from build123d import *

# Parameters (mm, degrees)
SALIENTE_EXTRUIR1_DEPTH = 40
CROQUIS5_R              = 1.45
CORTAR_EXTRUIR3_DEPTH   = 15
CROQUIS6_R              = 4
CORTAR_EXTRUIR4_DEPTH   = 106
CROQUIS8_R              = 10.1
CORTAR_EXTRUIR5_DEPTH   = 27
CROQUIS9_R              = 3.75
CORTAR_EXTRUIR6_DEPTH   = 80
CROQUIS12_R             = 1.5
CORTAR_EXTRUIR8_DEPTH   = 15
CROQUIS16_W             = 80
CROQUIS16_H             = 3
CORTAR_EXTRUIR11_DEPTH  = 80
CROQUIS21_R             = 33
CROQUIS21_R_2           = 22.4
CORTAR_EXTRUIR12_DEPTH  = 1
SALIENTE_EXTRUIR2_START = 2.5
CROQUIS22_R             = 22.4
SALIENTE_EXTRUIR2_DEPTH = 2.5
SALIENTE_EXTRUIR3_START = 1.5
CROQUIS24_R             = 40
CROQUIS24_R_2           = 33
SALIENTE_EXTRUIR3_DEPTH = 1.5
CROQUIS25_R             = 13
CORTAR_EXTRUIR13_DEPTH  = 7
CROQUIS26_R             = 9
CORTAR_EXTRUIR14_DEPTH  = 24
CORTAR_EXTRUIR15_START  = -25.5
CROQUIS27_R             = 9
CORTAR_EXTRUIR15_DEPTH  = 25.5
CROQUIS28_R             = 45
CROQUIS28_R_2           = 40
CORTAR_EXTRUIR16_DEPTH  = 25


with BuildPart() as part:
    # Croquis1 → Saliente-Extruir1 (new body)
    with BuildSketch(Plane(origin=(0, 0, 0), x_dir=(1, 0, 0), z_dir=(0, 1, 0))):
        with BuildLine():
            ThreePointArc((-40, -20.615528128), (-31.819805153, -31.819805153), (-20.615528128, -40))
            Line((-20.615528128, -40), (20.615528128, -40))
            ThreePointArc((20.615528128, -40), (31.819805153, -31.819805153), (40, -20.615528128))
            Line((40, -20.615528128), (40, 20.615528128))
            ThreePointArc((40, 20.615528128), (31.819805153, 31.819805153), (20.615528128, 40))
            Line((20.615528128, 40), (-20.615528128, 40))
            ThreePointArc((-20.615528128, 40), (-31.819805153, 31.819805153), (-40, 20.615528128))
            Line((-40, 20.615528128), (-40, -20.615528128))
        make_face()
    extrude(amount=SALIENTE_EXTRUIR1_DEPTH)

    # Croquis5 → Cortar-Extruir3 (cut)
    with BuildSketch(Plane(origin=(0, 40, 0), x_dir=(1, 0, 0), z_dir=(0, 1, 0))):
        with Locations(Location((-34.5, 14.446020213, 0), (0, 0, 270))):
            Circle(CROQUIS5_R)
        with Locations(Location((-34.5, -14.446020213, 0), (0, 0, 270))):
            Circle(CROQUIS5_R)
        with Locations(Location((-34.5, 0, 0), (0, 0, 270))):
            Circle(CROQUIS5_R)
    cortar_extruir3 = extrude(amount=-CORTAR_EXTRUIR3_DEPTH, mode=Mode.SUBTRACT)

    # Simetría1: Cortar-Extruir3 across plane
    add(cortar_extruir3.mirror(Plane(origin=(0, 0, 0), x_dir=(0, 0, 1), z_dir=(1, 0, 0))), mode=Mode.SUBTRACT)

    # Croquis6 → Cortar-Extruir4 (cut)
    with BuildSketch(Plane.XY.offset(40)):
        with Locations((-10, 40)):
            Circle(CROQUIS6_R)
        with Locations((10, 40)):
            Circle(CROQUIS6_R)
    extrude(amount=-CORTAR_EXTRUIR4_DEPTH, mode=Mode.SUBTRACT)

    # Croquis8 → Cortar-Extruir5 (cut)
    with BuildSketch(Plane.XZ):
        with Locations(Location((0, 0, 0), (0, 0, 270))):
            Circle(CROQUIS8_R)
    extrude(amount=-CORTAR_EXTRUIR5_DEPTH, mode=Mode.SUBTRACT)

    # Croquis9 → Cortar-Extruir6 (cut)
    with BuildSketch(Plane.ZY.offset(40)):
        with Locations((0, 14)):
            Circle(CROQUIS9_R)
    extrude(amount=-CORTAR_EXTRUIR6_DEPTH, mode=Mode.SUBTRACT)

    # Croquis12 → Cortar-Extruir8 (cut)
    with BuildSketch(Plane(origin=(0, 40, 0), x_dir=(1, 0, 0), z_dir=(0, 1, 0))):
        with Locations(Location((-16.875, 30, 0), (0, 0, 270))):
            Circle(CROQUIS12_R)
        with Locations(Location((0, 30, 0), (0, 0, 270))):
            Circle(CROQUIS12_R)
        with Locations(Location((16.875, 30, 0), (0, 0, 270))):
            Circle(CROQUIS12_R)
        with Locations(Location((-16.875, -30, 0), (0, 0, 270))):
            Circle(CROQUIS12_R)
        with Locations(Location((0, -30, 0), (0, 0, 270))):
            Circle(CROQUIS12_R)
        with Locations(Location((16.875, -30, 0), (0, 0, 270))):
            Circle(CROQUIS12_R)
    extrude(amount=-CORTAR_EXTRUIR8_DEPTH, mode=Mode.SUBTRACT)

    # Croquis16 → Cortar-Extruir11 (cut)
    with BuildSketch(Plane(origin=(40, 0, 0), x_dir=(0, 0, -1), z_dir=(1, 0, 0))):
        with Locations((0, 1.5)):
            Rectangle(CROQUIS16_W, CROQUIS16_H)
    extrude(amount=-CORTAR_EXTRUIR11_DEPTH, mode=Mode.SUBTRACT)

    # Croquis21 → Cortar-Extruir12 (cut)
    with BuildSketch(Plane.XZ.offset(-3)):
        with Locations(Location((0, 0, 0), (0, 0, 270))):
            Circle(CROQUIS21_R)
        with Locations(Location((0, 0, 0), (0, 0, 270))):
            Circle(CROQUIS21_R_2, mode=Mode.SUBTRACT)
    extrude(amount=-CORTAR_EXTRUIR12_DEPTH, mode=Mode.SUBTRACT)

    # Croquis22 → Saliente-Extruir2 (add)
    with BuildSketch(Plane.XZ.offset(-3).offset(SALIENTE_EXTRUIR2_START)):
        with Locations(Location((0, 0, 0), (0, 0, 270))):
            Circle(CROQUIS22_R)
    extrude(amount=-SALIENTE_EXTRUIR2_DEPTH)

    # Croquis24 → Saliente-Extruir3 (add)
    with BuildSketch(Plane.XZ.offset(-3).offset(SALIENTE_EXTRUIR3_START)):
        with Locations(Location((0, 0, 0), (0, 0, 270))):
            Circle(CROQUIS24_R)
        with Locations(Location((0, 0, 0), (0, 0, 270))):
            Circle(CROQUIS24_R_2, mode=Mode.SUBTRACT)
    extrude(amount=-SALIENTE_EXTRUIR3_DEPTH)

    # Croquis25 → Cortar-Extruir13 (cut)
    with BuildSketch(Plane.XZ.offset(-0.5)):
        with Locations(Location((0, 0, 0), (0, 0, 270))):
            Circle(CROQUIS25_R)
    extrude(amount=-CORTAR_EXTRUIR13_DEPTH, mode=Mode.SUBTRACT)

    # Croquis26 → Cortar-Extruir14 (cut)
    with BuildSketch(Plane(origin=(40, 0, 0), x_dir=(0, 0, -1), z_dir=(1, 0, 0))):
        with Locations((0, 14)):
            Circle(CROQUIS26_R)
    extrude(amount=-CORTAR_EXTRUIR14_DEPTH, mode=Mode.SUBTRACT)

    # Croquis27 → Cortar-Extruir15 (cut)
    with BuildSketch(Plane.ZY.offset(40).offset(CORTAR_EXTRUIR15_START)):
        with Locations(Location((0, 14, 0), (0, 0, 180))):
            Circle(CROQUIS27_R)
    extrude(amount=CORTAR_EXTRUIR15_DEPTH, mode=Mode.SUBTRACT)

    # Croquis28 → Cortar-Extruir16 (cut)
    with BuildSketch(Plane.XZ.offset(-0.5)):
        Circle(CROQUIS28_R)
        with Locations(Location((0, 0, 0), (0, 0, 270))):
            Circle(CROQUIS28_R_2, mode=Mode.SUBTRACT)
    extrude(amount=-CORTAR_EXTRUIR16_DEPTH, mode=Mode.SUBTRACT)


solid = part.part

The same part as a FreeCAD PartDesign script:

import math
import FreeCAD as App
import Part
import Sketcher
from FreeCAD import Vector

doc = App.newDocument("Part")
body = doc.addObject("PartDesign::Body", "Body")

# Sketch on XZ plane
sketch1 = body.newObject("Sketcher::SketchObject", "Sketch")
sketch1.AttachmentSupport = (doc.getObject("XZ_Plane"), [""])
sketch1.MapMode = "FlatFace"
sketch1.addGeometry(Part.ArcOfCircle(Part.Circle(Vector(0, 0, 0), Vector(0, 0, 1), 45), math.radians(117), math.radians(153)), False)
sketch1.addGeometry(Part.LineSegment(Vector(-21, 40, 0), Vector(21, 40, 0)), False)
sketch1.addGeometry(Part.ArcOfCircle(Part.Circle(Vector(0, 0, 0), Vector(0, 0, 1), 45), math.radians(27), math.radians(63)), False)
sketch1.addGeometry(Part.LineSegment(Vector(40, 21, 0), Vector(40, -21, 0)), False)
sketch1.addGeometry(Part.ArcOfCircle(Part.Circle(Vector(0, 0, 0), Vector(0, 0, 1), 45), math.radians(-63), math.radians(-27)), False)
sketch1.addGeometry(Part.LineSegment(Vector(21, -40, 0), Vector(-21, -40, 0)), False)
sketch1.addGeometry(Part.ArcOfCircle(Part.Circle(Vector(0, 0, 0), Vector(0, 0, 1), 45), math.radians(-153), math.radians(-117)), False)
sketch1.addGeometry(Part.LineSegment(Vector(-40, -21, 0), Vector(-40, 21, 0)), False)
sketch1.addConstraint(Sketcher.Constraint("Coincident", 0, 1, 1, 1))
sketch1.addConstraint(Sketcher.Constraint("Coincident", 1, 2, 2, 2))
sketch1.addConstraint(Sketcher.Constraint("Coincident", 2, 1, 3, 1))
sketch1.addConstraint(Sketcher.Constraint("Coincident", 3, 2, 4, 2))
sketch1.addConstraint(Sketcher.Constraint("Coincident", 4, 1, 5, 1))
sketch1.addConstraint(Sketcher.Constraint("Coincident", 5, 2, 6, 2))
sketch1.addConstraint(Sketcher.Constraint("Coincident", 6, 1, 7, 1))
sketch1.addConstraint(Sketcher.Constraint("Coincident", 7, 2, 0, 2))
sketch1.addConstraint(Sketcher.Constraint("Horizontal", 1))
sketch1.addConstraint(Sketcher.Constraint("Vertical", 3))
sketch1.addConstraint(Sketcher.Constraint("Horizontal", 5))
sketch1.addConstraint(Sketcher.Constraint("Vertical", 7))
sketch1.addConstraint(Sketcher.Constraint("Coincident", 0, 3, -1, 1))
sketch1.addConstraint(Sketcher.Constraint("Coincident", 2, 3, -1, 1))
sketch1.addConstraint(Sketcher.Constraint("Coincident", 4, 3, -1, 1))
sketch1.addConstraint(Sketcher.Constraint("Coincident", 6, 3, -1, 1))
sketch1.addConstraint(Sketcher.Constraint("Equal", 0, 2))
sketch1.addConstraint(Sketcher.Constraint("Equal", 2, 4))
sketch1.addConstraint(Sketcher.Constraint("Equal", 4, 6))
sketch1.addConstraint(Sketcher.Constraint("Horizontal", 3, 2, 6, 1))
sketch1.addConstraint(Sketcher.Constraint("Vertical", 1, 2, 4, 1))
sketch1.addConstraint(Sketcher.Constraint("Equal", 5, 3))
sketch1.addConstraint(Sketcher.Constraint("Radius", 0, 45.0))
sketch1.addConstraint(Sketcher.Constraint("DistanceY", -1, 1, 0, 1, 40.0))
pad1 = body.newObject("PartDesign::Pad", "Pad")
pad1.Profile = sketch1
pad1.Length = 40
pad1.Reversed = True

# Sketch on XZ plane
sketch2 = body.newObject("Sketcher::SketchObject", "Sketch001")
sketch2.AttachmentSupport = (doc.getObject("XZ_Plane"), [""])
sketch2.MapMode = "FlatFace"
sketch2.AttachmentOffset = App.Placement(Vector(0, 0, -40), App.Rotation())
sketch2.addGeometry(Part.Circle(Vector(-34.5, -14.4, 0), Vector(0, 0, 1), 1.4), False)
sketch2.addGeometry(Part.Circle(Vector(-34.5, 14.4, 0), Vector(0, 0, 1), 1.4), False)
sketch2.addGeometry(Part.Circle(Vector(-34.5, 0, 0), Vector(0, 0, 1), 1.4), False)
sketch2.addConstraint(Sketcher.Constraint("Equal", 0, 1))
sketch2.addConstraint(Sketcher.Constraint("Equal", 1, 2))
sketch2.addConstraint(Sketcher.Constraint("Symmetric", 0, 3, 1, 3, -1))
sketch2.addConstraint(Sketcher.Constraint("PointOnObject", 2, 3, -1))
sketch2.addConstraint(Sketcher.Constraint("Vertical", 1, 3, 2, 3))
sketch2.addConstraint(Sketcher.Constraint("Diameter", 0, 2.9))
sketch2.addConstraint(Sketcher.Constraint("DistanceX", 0, 3, -1, 1, 34.5))
sketch2.addConstraint(Sketcher.Constraint("DistanceY", 0, 3, -1, 1, 14.44602))
pocket1 = body.newObject("PartDesign::Pocket", "Pocket")
pocket1.Profile = sketch2
pocket1.Length = 15
pocket1.Reversed = True
doc.recompute()

mirrored = body.newObject("PartDesign::Mirrored", "Mirrored")
mirrored.Originals = [pocket1]
mirrored.MirrorPlane = (doc.getObject("YZ_Plane"), [""])
body.Tip = mirrored

# Sketch on XY plane
sketch3 = body.newObject("Sketcher::SketchObject", "Sketch002")
sketch3.AttachmentSupport = (doc.getObject("XY_Plane"), [""])
sketch3.MapMode = "FlatFace"
sketch3.AttachmentOffset = App.Placement(Vector(0, 0, 40), App.Rotation())
sketch3.addGeometry(Part.Circle(Vector(-10, 40, 0), Vector(0, 0, 1), 4), False)
sketch3.addGeometry(Part.Circle(Vector(10, 40, 0), Vector(0, 0, 1), 4), False)
sketch3.addConstraint(Sketcher.Constraint("Equal", 0, 1))
sketch3.addConstraint(Sketcher.Constraint("Symmetric", 0, 3, 1, 3, -2))
sketch3.addConstraint(Sketcher.Constraint("Diameter", 0, 8.0))
sketch3.addConstraint(Sketcher.Constraint("DistanceX", 0, 3, -1, 1, 10.0))
sketch3.addConstraint(Sketcher.Constraint("DistanceY", -1, 1, 0, 3, 40.0))
pocket2 = body.newObject("PartDesign::Pocket", "Pocket001")
pocket2.Profile = sketch3
pocket2.Length = 106

# Sketch on XZ plane
sketch4 = body.newObject("Sketcher::SketchObject", "Sketch003")
sketch4.AttachmentSupport = (doc.getObject("XZ_Plane"), [""])
sketch4.MapMode = "FlatFace"
sketch4.addGeometry(Part.Circle(Vector(0, 0, 0), Vector(0, 0, 1), 10), False)
sketch4.addConstraint(Sketcher.Constraint("Coincident", 0, 3, -1, 1))
sketch4.addConstraint(Sketcher.Constraint("Diameter", 0, 20.2))
pocket3 = body.newObject("PartDesign::Pocket", "Pocket002")
pocket3.Profile = sketch4
pocket3.Length = 27

# Sketch on YZ plane
sketch5 = body.newObject("Sketcher::SketchObject", "Sketch004")
sketch5.AttachmentSupport = (doc.getObject("YZ_Plane"), [""])
sketch5.MapMode = "FlatFace"
sketch5.AttachmentOffset = App.Placement(Vector(0, 0, -40), App.Rotation())
sketch5.addGeometry(Part.Circle(Vector(14, 0, 0), Vector(0, 0, 1), 3.8), False)
sketch5.addConstraint(Sketcher.Constraint("PointOnObject", 0, 3, -1))
sketch5.addConstraint(Sketcher.Constraint("Diameter", 0, 7.5))
sketch5.addConstraint(Sketcher.Constraint("DistanceX", -1, 1, 0, 3, 14.0))
pocket4 = body.newObject("PartDesign::Pocket", "Pocket003")
pocket4.Profile = sketch5
pocket4.Length = 80
pocket4.Reversed = True

# Sketch on XZ plane
sketch6 = body.newObject("Sketcher::SketchObject", "Sketch005")
sketch6.AttachmentSupport = (doc.getObject("XZ_Plane"), [""])
sketch6.MapMode = "FlatFace"
sketch6.AttachmentOffset = App.Placement(Vector(0, 0, -40), App.Rotation())
sketch6.addGeometry(Part.Circle(Vector(-16.9, -30, 0), Vector(0, 0, 1), 1.5), False)
sketch6.addGeometry(Part.Circle(Vector(0, -30, 0), Vector(0, 0, 1), 1.5), False)
sketch6.addGeometry(Part.Circle(Vector(16.9, -30, 0), Vector(0, 0, 1), 1.5), False)
sketch6.addGeometry(Part.Circle(Vector(-16.9, 30, 0), Vector(0, 0, 1), 1.5), False)
sketch6.addGeometry(Part.Circle(Vector(0, 30, 0), Vector(0, 0, 1), 1.5), False)
sketch6.addGeometry(Part.Circle(Vector(16.9, 30, 0), Vector(0, 0, 1), 1.5), False)
sketch6.addConstraint(Sketcher.Constraint("Equal", 0, 1))
sketch6.addConstraint(Sketcher.Constraint("Equal", 1, 2))
sketch6.addConstraint(Sketcher.Constraint("Equal", 2, 3))
sketch6.addConstraint(Sketcher.Constraint("Equal", 3, 4))
sketch6.addConstraint(Sketcher.Constraint("Equal", 4, 5))
sketch6.addConstraint(Sketcher.Constraint("Symmetric", 2, 3, 3, 3, -1, 1))
sketch6.addConstraint(Sketcher.Constraint("Symmetric", 1, 3, 4, 3, -1, 1))
sketch6.addConstraint(Sketcher.Constraint("Symmetric", 0, 3, 5, 3, -1, 1))
sketch6.addConstraint(Sketcher.Constraint("Symmetric", 0, 3, 2, 3, -2))
sketch6.addConstraint(Sketcher.Constraint("PointOnObject", 1, 3, -2))
sketch6.addConstraint(Sketcher.Constraint("Horizontal", 0, 3, 1, 3))
sketch6.addConstraint(Sketcher.Constraint("Diameter", 0, 3.0))
sketch6.addConstraint(Sketcher.Constraint("DistanceY", 0, 3, -1, 1, 30.0))
sketch6.addConstraint(Sketcher.Constraint("DistanceX", 0, 3, 2, 3, 33.75))
pocket5 = body.newObject("PartDesign::Pocket", "Pocket004")
pocket5.Profile = sketch6
pocket5.Length = 15
pocket5.Reversed = True

# Sketch on YZ plane
sketch7 = body.newObject("Sketcher::SketchObject", "Sketch006")
sketch7.AttachmentSupport = (doc.getObject("YZ_Plane"), [""])
sketch7.MapMode = "FlatFace"
sketch7.AttachmentOffset = App.Placement(Vector(0, 0, 40), App.Rotation())
sketch7.addGeometry(Part.LineSegment(Vector(3, 40, 0), Vector(0, 40, 0)), False)
sketch7.addGeometry(Part.LineSegment(Vector(0, 40, 0), Vector(0, -40, 0)), False)
sketch7.addGeometry(Part.LineSegment(Vector(0, -40, 0), Vector(3, -40, 0)), False)
sketch7.addGeometry(Part.LineSegment(Vector(3, -40, 0), Vector(3, 40, 0)), False)
sketch7.addConstraint(Sketcher.Constraint("Coincident", 0, 2, 1, 1))
sketch7.addConstraint(Sketcher.Constraint("Coincident", 1, 2, 2, 1))
sketch7.addConstraint(Sketcher.Constraint("Coincident", 2, 2, 3, 1))
sketch7.addConstraint(Sketcher.Constraint("Coincident", 3, 2, 0, 1))
sketch7.addConstraint(Sketcher.Constraint("Horizontal", 0))
sketch7.addConstraint(Sketcher.Constraint("Vertical", 1))
sketch7.addConstraint(Sketcher.Constraint("Horizontal", 2))
sketch7.addConstraint(Sketcher.Constraint("Vertical", 3))
sketch7.addConstraint(Sketcher.Constraint("Symmetric", 0, 2, 1, 2, -1, 1))
sketch7.addConstraint(Sketcher.Constraint("DistanceX", 0, 2, 0, 1, 3.0))
sketch7.addConstraint(Sketcher.Constraint("DistanceY", 1, 2, 1, 1, 80.0))
pocket6 = body.newObject("PartDesign::Pocket", "Pocket005")
pocket6.Profile = sketch7
pocket6.Length = 80

# Sketch on XZ plane
sketch8 = body.newObject("Sketcher::SketchObject", "Sketch007")
sketch8.AttachmentSupport = (doc.getObject("XZ_Plane"), [""])
sketch8.MapMode = "FlatFace"
sketch8.AttachmentOffset = App.Placement(Vector(0, 0, -3), App.Rotation())
sketch8.addGeometry(Part.Circle(Vector(0, 0, 0), Vector(0, 0, 1), 33), False)
sketch8.addGeometry(Part.Circle(Vector(0, 0, 0), Vector(0, 0, 1), 22), False)
sketch8.addConstraint(Sketcher.Constraint("Coincident", 0, 3, -1, 1))
sketch8.addConstraint(Sketcher.Constraint("Coincident", 1, 3, -1, 1))
sketch8.addConstraint(Sketcher.Constraint("Diameter", 0, 66.0))
sketch8.addConstraint(Sketcher.Constraint("Diameter", 1, 44.8))
pocket7 = body.newObject("PartDesign::Pocket", "Pocket006")
pocket7.Profile = sketch8
pocket7.Length = 1

# Sketch on XZ plane
sketch9 = body.newObject("Sketcher::SketchObject", "Sketch008")
sketch9.AttachmentSupport = (doc.getObject("XZ_Plane"), [""])
sketch9.MapMode = "FlatFace"
sketch9.AttachmentOffset = App.Placement(Vector(0, 0, -0.5), App.Rotation())
sketch9.addGeometry(Part.Circle(Vector(0, 0, 0), Vector(0, 0, 1), 22), False)
sketch9.addConstraint(Sketcher.Constraint("Coincident", 0, 3, -1, 1))
sketch9.addConstraint(Sketcher.Constraint("Diameter", 0, 44.8))
pad2 = body.newObject("PartDesign::Pad", "Pad001")
pad2.Profile = sketch9
pad2.Length = 2.5
pad2.Reversed = True

# Sketch on XZ plane
sketch10 = body.newObject("Sketcher::SketchObject", "Sketch009")
sketch10.AttachmentSupport = (doc.getObject("XZ_Plane"), [""])
sketch10.MapMode = "FlatFace"
sketch10.AttachmentOffset = App.Placement(Vector(0, 0, -1.5), App.Rotation())
sketch10.addGeometry(Part.Circle(Vector(0, 0, 0), Vector(0, 0, 1), 40), False)
sketch10.addGeometry(Part.Circle(Vector(0, 0, 0), Vector(0, 0, 1), 33), False)
sketch10.addConstraint(Sketcher.Constraint("Coincident", 0, 3, -1, 1))
sketch10.addConstraint(Sketcher.Constraint("Coincident", 1, 3, -1, 1))
sketch10.addConstraint(Sketcher.Constraint("Diameter", 0, 80.0))
sketch10.addConstraint(Sketcher.Constraint("Diameter", 1, 66.0))
pad3 = body.newObject("PartDesign::Pad", "Pad002")
pad3.Profile = sketch10
pad3.Length = 1.5
pad3.Reversed = True

# Sketch on XZ plane
sketch11 = body.newObject("Sketcher::SketchObject", "Sketch010")
sketch11.AttachmentSupport = (doc.getObject("XZ_Plane"), [""])
sketch11.MapMode = "FlatFace"
sketch11.AttachmentOffset = App.Placement(Vector(0, 0, -0.5), App.Rotation())
sketch11.addGeometry(Part.Circle(Vector(0, 0, 0), Vector(0, 0, 1), 13), False)
sketch11.addConstraint(Sketcher.Constraint("Coincident", 0, 3, -1, 1))
sketch11.addConstraint(Sketcher.Constraint("Diameter", 0, 26.0))
pocket8 = body.newObject("PartDesign::Pocket", "Pocket007")
pocket8.Profile = sketch11
pocket8.Length = 7

# Sketch on YZ plane
sketch12 = body.newObject("Sketcher::SketchObject", "Sketch011")
sketch12.AttachmentSupport = (doc.getObject("YZ_Plane"), [""])
sketch12.MapMode = "FlatFace"
sketch12.AttachmentOffset = App.Placement(Vector(0, 0, 40), App.Rotation())
sketch12.addGeometry(Part.Circle(Vector(14, 0, 0), Vector(0, 0, 1), 9), False)
sketch12.addConstraint(Sketcher.Constraint("PointOnObject", 0, 3, -1))
sketch12.addConstraint(Sketcher.Constraint("Diameter", 0, 18.0))
sketch12.addConstraint(Sketcher.Constraint("DistanceX", -1, 1, 0, 3, 14.0))
pocket9 = body.newObject("PartDesign::Pocket", "Pocket008")
pocket9.Profile = sketch12
pocket9.Length = 24

# Sketch on YZ plane
sketch13 = body.newObject("Sketcher::SketchObject", "Sketch012")
sketch13.AttachmentSupport = (doc.getObject("YZ_Plane"), [""])
sketch13.MapMode = "FlatFace"
sketch13.AttachmentOffset = App.Placement(Vector(0, 0, -14.5), App.Rotation())
sketch13.addGeometry(Part.Circle(Vector(14, 0, 0), Vector(0, 0, 1), 9), False)
sketch13.addConstraint(Sketcher.Constraint("PointOnObject", 0, 3, -1))
sketch13.addConstraint(Sketcher.Constraint("Diameter", 0, 18.0))
sketch13.addConstraint(Sketcher.Constraint("DistanceX", -1, 1, 0, 3, 14.0))
pocket10 = body.newObject("PartDesign::Pocket", "Pocket009")
pocket10.Profile = sketch13
pocket10.Length = 25.5

# Sketch on XZ plane
sketch14 = body.newObject("Sketcher::SketchObject", "Sketch013")
sketch14.AttachmentSupport = (doc.getObject("XZ_Plane"), [""])
sketch14.MapMode = "FlatFace"
sketch14.AttachmentOffset = App.Placement(Vector(0, 0, -0.5), App.Rotation())
sketch14.addGeometry(Part.Circle(Vector(0, 0, 0), Vector(0, 0, 1), 45), False)
sketch14.addGeometry(Part.Circle(Vector(0, 0, 0), Vector(0, 0, 1), 40), False)
sketch14.addConstraint(Sketcher.Constraint("Coincident", 0, 3, -1, 1))
sketch14.addConstraint(Sketcher.Constraint("Coincident", 1, 3, -1, 1))
sketch14.addConstraint(Sketcher.Constraint("Diameter", 0, 90.0))
sketch14.addConstraint(Sketcher.Constraint("Diameter", 1, 80.0))
pocket11 = body.newObject("PartDesign::Pocket", "Pocket010")
pocket11.Profile = sketch14
pocket11.Length = 25

doc.recompute()
